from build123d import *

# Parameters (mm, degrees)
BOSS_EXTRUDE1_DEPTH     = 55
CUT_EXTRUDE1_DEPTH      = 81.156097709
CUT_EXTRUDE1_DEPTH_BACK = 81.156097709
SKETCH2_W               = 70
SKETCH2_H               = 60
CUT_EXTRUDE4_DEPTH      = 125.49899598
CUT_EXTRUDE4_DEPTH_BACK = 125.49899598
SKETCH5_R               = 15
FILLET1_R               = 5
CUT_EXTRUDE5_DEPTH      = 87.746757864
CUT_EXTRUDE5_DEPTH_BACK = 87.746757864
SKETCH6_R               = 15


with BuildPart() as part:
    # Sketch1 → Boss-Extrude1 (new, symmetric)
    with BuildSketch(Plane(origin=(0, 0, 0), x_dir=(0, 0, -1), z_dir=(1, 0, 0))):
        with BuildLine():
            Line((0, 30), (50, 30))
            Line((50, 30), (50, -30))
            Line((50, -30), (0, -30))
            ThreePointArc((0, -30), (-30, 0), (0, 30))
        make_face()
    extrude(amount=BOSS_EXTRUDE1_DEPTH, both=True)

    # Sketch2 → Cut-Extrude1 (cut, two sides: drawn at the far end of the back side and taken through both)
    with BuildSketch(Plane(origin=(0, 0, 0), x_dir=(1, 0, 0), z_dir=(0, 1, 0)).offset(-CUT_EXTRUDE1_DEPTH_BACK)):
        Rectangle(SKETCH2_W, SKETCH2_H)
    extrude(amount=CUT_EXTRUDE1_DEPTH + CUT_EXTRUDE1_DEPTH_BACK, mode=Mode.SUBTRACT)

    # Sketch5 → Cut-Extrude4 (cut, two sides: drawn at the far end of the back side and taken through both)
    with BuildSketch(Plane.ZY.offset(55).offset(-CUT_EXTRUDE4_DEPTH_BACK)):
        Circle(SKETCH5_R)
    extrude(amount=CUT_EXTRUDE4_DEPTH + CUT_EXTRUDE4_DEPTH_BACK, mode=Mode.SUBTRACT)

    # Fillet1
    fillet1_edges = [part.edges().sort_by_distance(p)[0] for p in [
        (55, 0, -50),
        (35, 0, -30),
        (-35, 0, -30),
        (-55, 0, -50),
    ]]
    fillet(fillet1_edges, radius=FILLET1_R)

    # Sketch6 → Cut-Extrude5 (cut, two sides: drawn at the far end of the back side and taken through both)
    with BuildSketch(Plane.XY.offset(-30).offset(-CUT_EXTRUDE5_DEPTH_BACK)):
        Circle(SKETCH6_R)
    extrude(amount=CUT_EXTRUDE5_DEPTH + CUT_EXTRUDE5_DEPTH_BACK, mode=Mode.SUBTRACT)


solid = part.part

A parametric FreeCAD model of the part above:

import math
import FreeCAD as App
import Part
import Sketcher
Q = App.Units.Quantity


def edges_at(feature, points):
    """Names of the edges that pass closest to the given points."""
    edges = feature.Shape.Edges
    near = lambda p: min(range(len(edges)), key=lambda i: edges[i].distToShape(Part.Vertex(*p))[0])
    return sorted({f"Edge{near(p) + 1}" for p in points})

doc = App.newDocument("Part")
body = doc.addObject("PartDesign::Body", "Body")

# Sketch on YZ plane
sketch1 = body.newObject("Sketcher::SketchObject", "Sketch")
sketch1.AttachmentSupport = (doc.getObject("YZ_Plane"), [""])
sketch1.MapMode = "FlatFace"
sketch1.addGeometry([
    Part.LineSegment(App.Vector(30, -50, 0), App.Vector(30, 0, 0)),
    Part.ArcOfCircle(Part.Circle(App.Vector(0, 0, 0), App.Vector(0, 0, 1), 30), math.radians(0), math.radians(180)),
    Part.LineSegment(App.Vector(-30, 0, 0), App.Vector(-30, -50, 0)),
    Part.LineSegment(App.Vector(-30, -50, 0), App.Vector(30, -50, 0)),
], False)
sketch1.addConstraint([
    Sketcher.Constraint("Tangent", 0, 2, 1, 1),
    Sketcher.Constraint("Tangent", 1, 2, 2, 1),
    Sketcher.Constraint("Coincident", 2, 2, 3, 1),
    Sketcher.Constraint("Coincident", 3, 2, 0, 1),
    Sketcher.Constraint("Vertical", 0),
    Sketcher.Constraint("Vertical", 2),
    Sketcher.Constraint("Horizontal", 3),
    Sketcher.Constraint("Coincident", 1, 3, -1, 1),
    Sketcher.Constraint("Radius", 1, Q("30 mm")),
    Sketcher.Constraint("DistanceY", 0, 1, 0, 2, Q("50 mm")),
])
pad1 = body.newObject("PartDesign::Pad", "Pad")
pad1.Profile = sketch1
pad1.Length = 110
pad1.Midplane = True

# Sketch on XZ plane
sketch2 = body.newObject("Sketcher::SketchObject", "Sketch001")
sketch2.AttachmentSupport = (doc.getObject("XZ_Plane"), [""])
sketch2.MapMode = "FlatFace"
sketch2.addGeometry([
    Part.LineSegment(App.Vector(-35, -30, 0), App.Vector(-35, 30, 0)),
    Part.LineSegment(App.Vector(-35, 30, 0), App.Vector(35, 30, 0)),
    Part.LineSegment(App.Vector(35, 30, 0), App.Vector(35, -30, 0)),
    Part.LineSegment(App.Vector(35, -30, 0), App.Vector(-35, -30, 0)),
], False)
sketch2.addConstraint([
    Sketcher.Constraint("Coincident", 0, 2, 1, 1),
    Sketcher.Constraint("Coincident", 1, 2, 2, 1),
    Sketcher.Constraint("Coincident", 2, 2, 3, 1),
    Sketcher.Constraint("Coincident", 3, 2, 0, 1),
    Sketcher.Constraint("Vertical", 0),
    Sketcher.Constraint("Horizontal", 1),
    Sketcher.Constraint("Vertical", 2),
    Sketcher.Constraint("Horizontal", 3),
    Sketcher.Constraint("Symmetric", 0, 2, 2, 2, -1, 1),
    Sketcher.Constraint("DistanceX", 1, 1, 1, 2, Q("70 mm")),
    Sketcher.Constraint("DistanceY", 0, 1, 0, 2, Q("60 mm")),
])
pocket1 = body.newObject("PartDesign::Pocket", "Pocket")
pocket1.Profile = sketch2
pocket1.Type = "ThroughAll"
pocket1.Midplane = True

# Sketch on YZ plane
sketch3 = body.newObject("Sketcher::SketchObject", "Sketch002")
sketch3.AttachmentSupport = (doc.getObject("YZ_Plane"), [""])
sketch3.MapMode = "FlatFace"
sketch3.AttachmentOffset = App.Placement(App.Vector(0, 0, -55), App.Rotation())
sketch3.addGeometry(Part.Circle(App.Vector(0, 0, 0), App.Vector(0, 0, 1), 15), False)
sketch3.addConstraint([
    Sketcher.Constraint("Coincident", 0, 3, -1, 1),
    Sketcher.Constraint("Diameter", 0, Q("30 mm")),
])
pocket2 = body.newObject("PartDesign::Pocket", "Pocket001")
pocket2.Profile = sketch3
pocket2.Type = "ThroughAll"
pocket2.Midplane = True
doc.recompute()

fillet = body.newObject("PartDesign::Fillet", "Fillet")
fillet.Base = (pocket2, edges_at(pocket2, [
    (55, 0, -50),
    (35, 0, -30),
    (-35, 0, -30),
    (-55, 0, -50),
]))
fillet.Radius = 5

# Sketch on XY plane
sketch4 = body.newObject("Sketcher::SketchObject", "Sketch003")
sketch4.AttachmentSupport = (doc.getObject("XY_Plane"), [""])
sketch4.MapMode = "FlatFace"
sketch4.AttachmentOffset = App.Placement(App.Vector(0, 0, -30), App.Rotation())
sketch4.addGeometry(Part.Circle(App.Vector(0, 0, 0), App.Vector(0, 0, 1), 15), False)
sketch4.addConstraint([
    Sketcher.Constraint("Coincident", 0, 3, -1, 1),
    Sketcher.Constraint("Diameter", 0, Q("30 mm")),
])
pocket3 = body.newObject("PartDesign::Pocket", "Pocket002")
pocket3.Profile = sketch4
pocket3.Type = "ThroughAll"
pocket3.Midplane = True

doc.recompute()
